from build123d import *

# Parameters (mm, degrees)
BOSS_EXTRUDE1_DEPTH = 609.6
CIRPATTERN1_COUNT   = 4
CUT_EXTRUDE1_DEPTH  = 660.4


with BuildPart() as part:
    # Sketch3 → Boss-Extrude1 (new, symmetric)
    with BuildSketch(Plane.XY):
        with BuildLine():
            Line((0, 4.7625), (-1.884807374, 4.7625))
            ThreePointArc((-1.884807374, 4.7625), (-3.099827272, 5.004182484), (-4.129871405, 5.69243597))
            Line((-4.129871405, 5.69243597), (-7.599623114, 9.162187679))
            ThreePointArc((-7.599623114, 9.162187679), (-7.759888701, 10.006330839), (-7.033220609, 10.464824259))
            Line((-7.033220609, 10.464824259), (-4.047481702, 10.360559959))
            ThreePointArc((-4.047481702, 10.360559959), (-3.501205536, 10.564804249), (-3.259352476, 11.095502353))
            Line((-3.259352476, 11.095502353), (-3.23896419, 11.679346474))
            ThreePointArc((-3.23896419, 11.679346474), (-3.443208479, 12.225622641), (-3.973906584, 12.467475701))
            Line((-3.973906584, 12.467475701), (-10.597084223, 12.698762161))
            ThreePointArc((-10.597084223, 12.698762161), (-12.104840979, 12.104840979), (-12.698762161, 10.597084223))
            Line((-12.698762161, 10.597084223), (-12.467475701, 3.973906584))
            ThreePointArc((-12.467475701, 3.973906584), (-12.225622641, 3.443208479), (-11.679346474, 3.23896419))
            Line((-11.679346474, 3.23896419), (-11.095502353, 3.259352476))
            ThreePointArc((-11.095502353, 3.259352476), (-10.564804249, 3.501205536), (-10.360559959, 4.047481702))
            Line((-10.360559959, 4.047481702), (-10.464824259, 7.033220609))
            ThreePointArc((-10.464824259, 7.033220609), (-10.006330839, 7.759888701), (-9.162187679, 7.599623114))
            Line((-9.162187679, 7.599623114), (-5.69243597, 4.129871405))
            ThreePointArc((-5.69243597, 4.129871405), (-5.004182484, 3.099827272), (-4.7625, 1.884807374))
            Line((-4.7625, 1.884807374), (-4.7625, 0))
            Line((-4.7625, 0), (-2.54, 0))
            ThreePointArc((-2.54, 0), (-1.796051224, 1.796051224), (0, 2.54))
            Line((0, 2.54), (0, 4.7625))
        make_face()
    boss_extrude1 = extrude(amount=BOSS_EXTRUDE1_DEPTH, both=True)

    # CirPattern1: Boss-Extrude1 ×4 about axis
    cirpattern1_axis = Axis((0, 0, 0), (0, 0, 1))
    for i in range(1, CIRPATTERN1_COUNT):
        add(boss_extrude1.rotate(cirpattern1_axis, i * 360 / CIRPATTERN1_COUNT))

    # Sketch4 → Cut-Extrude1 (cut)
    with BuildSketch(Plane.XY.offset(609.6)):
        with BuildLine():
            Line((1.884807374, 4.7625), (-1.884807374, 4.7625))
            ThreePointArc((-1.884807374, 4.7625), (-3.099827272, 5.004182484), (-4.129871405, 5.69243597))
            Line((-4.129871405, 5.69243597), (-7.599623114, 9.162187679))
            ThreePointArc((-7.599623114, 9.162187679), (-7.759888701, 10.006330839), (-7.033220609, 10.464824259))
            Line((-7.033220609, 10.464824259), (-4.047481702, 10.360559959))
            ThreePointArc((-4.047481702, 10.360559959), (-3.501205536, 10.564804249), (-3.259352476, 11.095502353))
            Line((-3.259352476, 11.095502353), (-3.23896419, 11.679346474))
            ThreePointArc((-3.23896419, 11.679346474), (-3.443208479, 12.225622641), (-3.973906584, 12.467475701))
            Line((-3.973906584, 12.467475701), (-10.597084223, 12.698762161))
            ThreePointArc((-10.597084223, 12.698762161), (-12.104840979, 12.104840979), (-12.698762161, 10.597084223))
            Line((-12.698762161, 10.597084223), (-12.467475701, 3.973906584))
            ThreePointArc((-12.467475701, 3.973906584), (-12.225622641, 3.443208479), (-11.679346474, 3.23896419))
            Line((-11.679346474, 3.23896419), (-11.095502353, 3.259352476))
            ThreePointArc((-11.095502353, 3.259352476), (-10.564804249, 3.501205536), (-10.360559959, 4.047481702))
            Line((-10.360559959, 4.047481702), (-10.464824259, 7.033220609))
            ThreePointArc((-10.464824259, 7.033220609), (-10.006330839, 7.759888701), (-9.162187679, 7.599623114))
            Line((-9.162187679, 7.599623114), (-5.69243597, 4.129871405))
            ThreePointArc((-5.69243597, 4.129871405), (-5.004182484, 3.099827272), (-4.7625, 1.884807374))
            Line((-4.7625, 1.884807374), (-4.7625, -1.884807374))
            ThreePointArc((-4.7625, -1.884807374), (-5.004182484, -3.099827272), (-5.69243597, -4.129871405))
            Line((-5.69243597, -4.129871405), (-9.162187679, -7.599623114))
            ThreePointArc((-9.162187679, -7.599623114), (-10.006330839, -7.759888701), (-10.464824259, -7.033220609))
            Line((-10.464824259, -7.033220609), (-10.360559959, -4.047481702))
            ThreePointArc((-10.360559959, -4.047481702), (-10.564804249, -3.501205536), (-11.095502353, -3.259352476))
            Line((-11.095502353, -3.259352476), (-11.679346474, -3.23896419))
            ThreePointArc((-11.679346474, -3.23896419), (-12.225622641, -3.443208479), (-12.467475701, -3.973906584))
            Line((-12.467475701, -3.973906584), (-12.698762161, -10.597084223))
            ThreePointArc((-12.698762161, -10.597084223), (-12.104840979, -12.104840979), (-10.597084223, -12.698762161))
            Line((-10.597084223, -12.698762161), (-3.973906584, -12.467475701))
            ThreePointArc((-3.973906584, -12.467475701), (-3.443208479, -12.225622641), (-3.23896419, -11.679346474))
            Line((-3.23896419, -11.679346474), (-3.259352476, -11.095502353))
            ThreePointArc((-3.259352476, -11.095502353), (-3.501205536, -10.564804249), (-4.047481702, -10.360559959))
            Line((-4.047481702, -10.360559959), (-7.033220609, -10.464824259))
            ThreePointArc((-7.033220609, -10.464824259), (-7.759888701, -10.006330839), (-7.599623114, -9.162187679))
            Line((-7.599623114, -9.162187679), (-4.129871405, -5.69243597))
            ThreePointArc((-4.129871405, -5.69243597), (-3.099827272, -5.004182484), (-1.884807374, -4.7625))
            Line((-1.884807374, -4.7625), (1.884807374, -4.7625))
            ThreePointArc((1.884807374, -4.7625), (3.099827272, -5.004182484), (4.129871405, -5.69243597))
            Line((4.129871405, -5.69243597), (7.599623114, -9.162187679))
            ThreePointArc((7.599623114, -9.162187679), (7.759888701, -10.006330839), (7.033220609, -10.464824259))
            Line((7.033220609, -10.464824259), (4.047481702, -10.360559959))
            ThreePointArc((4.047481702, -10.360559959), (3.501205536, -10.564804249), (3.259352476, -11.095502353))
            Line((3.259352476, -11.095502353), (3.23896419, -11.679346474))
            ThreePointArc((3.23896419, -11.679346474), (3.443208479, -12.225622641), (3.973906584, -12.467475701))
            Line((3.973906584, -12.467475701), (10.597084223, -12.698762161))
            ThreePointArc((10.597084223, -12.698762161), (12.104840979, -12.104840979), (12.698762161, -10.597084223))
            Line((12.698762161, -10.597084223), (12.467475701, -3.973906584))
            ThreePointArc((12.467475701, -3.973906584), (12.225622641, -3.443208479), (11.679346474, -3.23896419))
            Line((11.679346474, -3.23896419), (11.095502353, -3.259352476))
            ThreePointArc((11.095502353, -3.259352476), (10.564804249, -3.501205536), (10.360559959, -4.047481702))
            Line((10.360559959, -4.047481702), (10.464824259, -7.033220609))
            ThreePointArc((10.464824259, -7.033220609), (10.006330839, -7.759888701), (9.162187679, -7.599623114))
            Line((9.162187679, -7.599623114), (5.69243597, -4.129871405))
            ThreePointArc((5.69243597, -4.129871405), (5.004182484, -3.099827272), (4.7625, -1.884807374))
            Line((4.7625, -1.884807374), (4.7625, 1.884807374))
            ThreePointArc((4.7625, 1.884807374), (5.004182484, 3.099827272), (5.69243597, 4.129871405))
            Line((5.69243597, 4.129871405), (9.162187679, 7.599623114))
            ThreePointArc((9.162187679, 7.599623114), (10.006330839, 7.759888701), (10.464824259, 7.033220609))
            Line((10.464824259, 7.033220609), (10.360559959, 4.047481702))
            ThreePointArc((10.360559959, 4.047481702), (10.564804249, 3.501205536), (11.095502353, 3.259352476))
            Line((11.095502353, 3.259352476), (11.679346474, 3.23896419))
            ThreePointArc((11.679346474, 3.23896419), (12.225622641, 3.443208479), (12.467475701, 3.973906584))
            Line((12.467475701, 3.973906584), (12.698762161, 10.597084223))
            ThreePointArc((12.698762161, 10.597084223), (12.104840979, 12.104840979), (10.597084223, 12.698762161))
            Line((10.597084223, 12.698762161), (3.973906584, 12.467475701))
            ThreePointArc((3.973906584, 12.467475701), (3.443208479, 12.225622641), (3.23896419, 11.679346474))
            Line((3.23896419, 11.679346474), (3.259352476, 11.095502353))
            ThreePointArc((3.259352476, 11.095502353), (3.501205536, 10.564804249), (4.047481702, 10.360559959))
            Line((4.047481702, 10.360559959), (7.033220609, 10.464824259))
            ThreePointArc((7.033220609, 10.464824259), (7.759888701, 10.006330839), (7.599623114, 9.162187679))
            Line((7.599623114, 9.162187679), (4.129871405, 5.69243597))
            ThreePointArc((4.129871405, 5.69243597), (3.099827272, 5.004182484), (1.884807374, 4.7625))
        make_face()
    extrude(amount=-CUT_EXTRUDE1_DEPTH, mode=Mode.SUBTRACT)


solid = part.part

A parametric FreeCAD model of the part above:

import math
import FreeCAD as App
import Part
import Sketcher
from FreeCAD import Vector
Q = App.Units.Quantity

doc = App.newDocument("Part")
params = doc.addObject("Spreadsheet::Sheet", "Params")
for row, (alias, value) in enumerate([
    ("sketch1_radius", "0.1 in"),
    ("sketch1_radius2", "0.03 in"),
    ("sketch1_radius3", "0.08 in"),
    ("sketch1_radius4", "0.125 in"),
    ("sketch1_length", "0.023 in"),
    ("pad1_length", "48 in"),
    ("sketch2_radius", "0.03 in"),
    ("sketch2_radius2", "0.08 in"),
    ("sketch2_radius3", "0.125 in"),
    ("sketch2_length", "0.023 in"),
    ("pocket1_length", "26 in"),
], start=1):
    params.set(f"A{row}", alias)
    params.set(f"B{row}", "=" + value)
    params.setAlias(f"B{row}", alias)

body = doc.addObject("PartDesign::Body", "Body")

# Sketch on XY plane
sketch1 = body.newObject("Sketcher::SketchObject", "Sketch")
sketch1.AttachmentSupport = (doc.getObject("XY_Plane"), [""])
sketch1.MapMode = "FlatFace"
sketch1.addGeometry(Part.LineSegment(Vector(0, 4.7625, 0), Vector(-1.884807, 4.7625, 0)), False)
sketch1.addGeometry(Part.ArcOfCircle(Part.Circle(Vector(-1.884807, 7.9375, 0), Vector(0, 0, 1), 3.175), math.radians(-135), math.radians(-90)), False)
sketch1.addGeometry(Part.LineSegment(Vector(-4.129871, 5.692436, 0), Vector(-7.599623, 9.162188, 0)), False)
sketch1.addGeometry(Part.ArcOfCircle(Part.Circle(Vector(-7.059861, 9.70195, 0), Vector(0, 0, 1), 0.763339), math.radians(88), math.radians(225)), False)
sketch1.addGeometry(Part.LineSegment(Vector(-7.033221, 10.464824, 0), Vector(-4.047482, 10.36056, 0)), False)
sketch1.addGeometry(Part.ArcOfCircle(Part.Circle(Vector(-4.020888, 11.122096, 0), Vector(0, 0, 1), 0.762), math.radians(-92), math.radians(-2)), False)
sketch1.addGeometry(Part.LineSegment(Vector(-3.259352, 11.095502, 0), Vector(-3.238964, 11.679346, 0)), False)
sketch1.addGeometry(Part.ArcOfCircle(Part.Circle(Vector(-4.0005, 11.70594, 0), Vector(0, 0, 1), 0.762), math.radians(-2), math.radians(88)), False)
sketch1.addGeometry(Part.LineSegment(Vector(-3.973907, 12.467476, 0), Vector(-10.597084, 12.698762, 0)), False)
sketch1.addGeometry(Part.ArcOfCircle(Part.Circle(Vector(-10.668, 10.668, 0), Vector(0, 0, 1), 2.032), math.radians(88), math.radians(182)), False)
sketch1.addGeometry(Part.LineSegment(Vector(-12.698762, 10.597084, 0), Vector(-12.467476, 3.973907, 0)), False)
sketch1.addGeometry(Part.ArcOfCircle(Part.Circle(Vector(-11.70594, 4.0005, 0), Vector(0, 0, 1), 0.762), math.radians(-178), math.radians(-88)), False)
sketch1.addGeometry(Part.LineSegment(Vector(-11.679346, 3.238964, 0), Vector(-11.095502, 3.259352, 0)), False)
sketch1.addGeometry(Part.ArcOfCircle(Part.Circle(Vector(-11.122096, 4.020888, 0), Vector(0, 0, 1), 0.762), math.radians(-88), math.radians(2)), False)
sketch1.addGeometry(Part.LineSegment(Vector(-10.36056, 4.047482, 0), Vector(-10.464824, 7.033221, 0)), False)
sketch1.addGeometry(Part.ArcOfCircle(Part.Circle(Vector(-9.70195, 7.059861, 0), Vector(0, 0, 1), 0.763339), math.radians(45), math.radians(182)), False)
sketch1.addGeometry(Part.LineSegment(Vector(-9.162188, 7.599623, 0), Vector(-5.692436, 4.129871, 0)), False)
sketch1.addGeometry(Part.ArcOfCircle(Part.Circle(Vector(-7.9375, 1.884807, 0), Vector(0, 0, 1), 3.175), math.radians(0), math.radians(45)), False)
sketch1.addGeometry(Part.LineSegment(Vector(-4.7625, 1.884807, 0), Vector(-4.7625, 0, 0)), False)
sketch1.addGeometry(Part.LineSegment(Vector(-4.7625, 0, 0), Vector(-2.54, 0, 0)), False)
sketch1.addGeometry(Part.ArcOfCircle(Part.Circle(Vector(0, 0, 0), Vector(0, 0, 1), 2.54), math.radians(90), math.radians(180)), False)
sketch1.addGeometry(Part.LineSegment(Vector(0, 2.54, 0), Vector(0, 4.7625, 0)), False)
sketch1.addConstraint(Sketcher.Constraint("Tangent", 0, 2, 1, 2))
sketch1.addConstraint(Sketcher.Constraint("Tangent", 1, 1, 2, 1))
sketch1.addConstraint(Sketcher.Constraint("Tangent", 2, 2, 3, 2))
sketch1.addConstraint(Sketcher.Constraint("Tangent", 3, 1, 4, 1))
sketch1.addConstraint(Sketcher.Constraint("Tangent", 4, 2, 5, 1))
sketch1.addConstraint(Sketcher.Constraint("Tangent", 5, 2, 6, 1))
sketch1.addConstraint(Sketcher.Constraint("Tangent", 6, 2, 7, 1))
sketch1.addConstraint(Sketcher.Constraint("Tangent", 7, 2, 8, 1))
sketch1.addConstraint(Sketcher.Constraint("Tangent", 8, 2, 9, 1))
sketch1.addConstraint(Sketcher.Constraint("Tangent", 9, 2, 10, 1))
sketch1.addConstraint(Sketcher.Constraint("Tangent", 10, 2, 11, 1))
sketch1.addConstraint(Sketcher.Constraint("Tangent", 11, 2, 12, 1))
sketch1.addConstraint(Sketcher.Constraint("Tangent", 12, 2, 13, 1))
sketch1.addConstraint(Sketcher.Constraint("Tangent", 13, 2, 14, 1))
sketch1.addConstraint(Sketcher.Constraint("Tangent", 14, 2, 15, 2))
sketch1.addConstraint(Sketcher.Constraint("Tangent", 15, 1, 16, 1))
sketch1.addConstraint(Sketcher.Constraint("Tangent", 16, 2, 17, 2))
sketch1.addConstraint(Sketcher.Constraint("Tangent", 17, 1, 18, 1))
sketch1.addConstraint(Sketcher.Constraint("Coincident", 18, 2, 19, 1))
sketch1.addConstraint(Sketcher.Constraint("Coincident", 19, 2, 20, 2))
sketch1.addConstraint(Sketcher.Constraint("Coincident", 20, 1, 21, 1))
sketch1.addConstraint(Sketcher.Constraint("Coincident", 21, 2, 0, 1))
sketch1.addConstraint(Sketcher.Constraint("Horizontal", 0))
sketch1.addConstraint(Sketcher.Constraint("Vertical", 18))
sketch1.addConstraint(Sketcher.Constraint("Horizontal", 19))
sketch1.addConstraint(Sketcher.Constraint("Vertical", 21))
sketch1.addConstraint(Sketcher.Constraint("Coincident", 20, 3, -1, 1))
sketch1.addConstraint(Sketcher.Constraint("Equal", 5, 7))
sketch1.addConstraint(Sketcher.Constraint("Equal", 7, 11))
sketch1.addConstraint(Sketcher.Constraint("Equal", 11, 13))
sketch1.addConstraint(Sketcher.Constraint("Equal", 3, 15))
sketch1.addConstraint(Sketcher.Constraint("Equal", 1, 17))
sketch1.addConstraint(Sketcher.Constraint("PointOnObject", 18, 2, -1))
sketch1.addConstraint(Sketcher.Constraint("PointOnObject", 20, 1, -2))
sketch1.addConstraint(Sketcher.Constraint("Perpendicular", 4, 6))
sketch1.addConstraint(Sketcher.Constraint("Perpendicular", 6, 8))
sketch1.addConstraint(Sketcher.Constraint("Perpendicular", 10, 12))
sketch1.addConstraint(Sketcher.Constraint("Perpendicular", 12, 14))
sketch1.addConstraint(Sketcher.Constraint("Parallel", 2, 16))
sketch1.addConstraint(Sketcher.Constraint("Equal", 0, 18))
sketch1.addConstraint(Sketcher.Constraint("Equal", 19, 21))
sketch1.addConstraint(Sketcher.Constraint("Equal", 8, 10))
sketch1.addConstraint(Sketcher.Constraint("Equal", 6, 12))
sketch1.addConstraint(Sketcher.Constraint("Equal", 4, 14))
sketch1.addConstraint(Sketcher.Constraint("Equal", 2, 16))
sketch1.addConstraint(Sketcher.Constraint("Radius", 20, Q("0.1 in")))
sketch1.addConstraint(Sketcher.Constraint("Radius", 5, Q("0.03 in")))
sketch1.addConstraint(Sketcher.Constraint("Radius", 9, Q("0.08 in")))
sketch1.addConstraint(Sketcher.Constraint("Angle", 2, Q("135 deg")))
sketch1.addConstraint(Sketcher.Constraint("Angle", 4, Q("-2 deg")))
sketch1.addConstraint(Sketcher.Constraint("Radius", 1, Q("0.125 in")))
sketch1.addConstraint(Sketcher.Constraint("DistanceX", 9, 3, -1, 1, Q("0.42 in")))
sketch1.addConstraint(Sketcher.Constraint("Distance", 6, Q("0.023 in")))
sketch1.addConstraint(Sketcher.Constraint("DistanceX", 19, 1, 19, 2, Q("0.0875 in")))
sketch1.addConstraint(Sketcher.Constraint("Radius", 3, 0.763339))
sketch1.addConstraint(Sketcher.Constraint("DistanceY", 11, 3, 1, 3, Q("0.155 in")))
sketch1.addConstraint(Sketcher.Constraint("DistanceY", 15, 3, 8, 2, 5.638901))
sketch1.setExpression("Constraints[45]", "Params.sketch1_radius")
sketch1.setExpression("Constraints[46]", "Params.sketch1_radius2")
sketch1.setExpression("Constraints[47]", "Params.sketch1_radius3")
sketch1.setExpression("Constraints[50]", "Params.sketch1_radius4")
sketch1.setExpression("Constraints[52]", "Params.sketch1_length")
pad1 = body.newObject("PartDesign::Pad", "Pad")
pad1.Profile = sketch1
pad1.setExpression("Length", "Params.pad1_length")
pad1.Midplane = True
doc.recompute()

polarpattern = body.newObject("PartDesign::PolarPattern", "PolarPattern")
polarpattern.Originals = [pad1]
polarpattern.Axis = (doc.getObject("Z_Axis"), [""])
polarpattern.Angle = 360
polarpattern.Occurrences = 4
body.Tip = polarpattern

# Sketch on XY plane
sketch2 = body.newObject("Sketcher::SketchObject", "Sketch001")
sketch2.AttachmentSupport = (doc.getObject("XY_Plane"), [""])
sketch2.MapMode = "FlatFace"
sketch2.AttachmentOffset = App.Placement(Vector(0, 0, 24 * 25.4), App.Rotation())
sketch2.addGeometry(Part.LineSegment(Vector(1.884807, 4.7625, 0), Vector(-1.884807, 4.7625, 0)), False)
sketch2.addGeometry(Part.ArcOfCircle(Part.Circle(Vector(-1.884807, 7.9375, 0), Vector(0, 0, 1), 3.175), math.radians(-135), math.radians(-90)), False)
sketch2.addGeometry(Part.LineSegment(Vector(-4.129871, 5.692436, 0), Vector(-7.599623, 9.162188, 0)), False)
sketch2.addGeometry(Part.ArcOfCircle(Part.Circle(Vector(-7.059861, 9.70195, 0), Vector(0, 0, 1), 0.763339), math.radians(88), math.radians(225)), False)
sketch2.addGeometry(Part.LineSegment(Vector(-7.033221, 10.464824, 0), Vector(-4.047482, 10.36056, 0)), False)
sketch2.addGeometry(Part.ArcOfCircle(Part.Circle(Vector(-4.020888, 11.122096, 0), Vector(0, 0, 1), 0.762), math.radians(-92), math.radians(-2)), False)
sketch2.addGeometry(Part.LineSegment(Vector(-3.259352, 11.095502, 0), Vector(-3.238964, 11.679346, 0)), False)
sketch2.addGeometry(Part.ArcOfCircle(Part.Circle(Vector(-4.0005, 11.70594, 0), Vector(0, 0, 1), 0.762), math.radians(-2), math.radians(88)), False)
sketch2.addGeometry(Part.LineSegment(Vector(-3.973907, 12.467476, 0), Vector(-10.597084, 12.698762, 0)), False)
sketch2.addGeometry(Part.ArcOfCircle(Part.Circle(Vector(-10.668, 10.668, 0), Vector(0, 0, 1), 2.032), math.radians(88), math.radians(182)), False)
sketch2.addGeometry(Part.LineSegment(Vector(-12.698762, 10.597084, 0), Vector(-12.467476, 3.973907, 0)), False)
sketch2.addGeometry(Part.ArcOfCircle(Part.Circle(Vector(-11.70594, 4.0005, 0), Vector(0, 0, 1), 0.762), math.radians(-178), math.radians(-88)), False)
sketch2.addGeometry(Part.LineSegment(Vector(-11.679346, 3.238964, 0), Vector(-11.095502, 3.259352, 0)), False)
sketch2.addGeometry(Part.ArcOfCircle(Part.Circle(Vector(-11.122096, 4.020888, 0), Vector(0, 0, 1), 0.762), math.radians(-88), math.radians(2)), False)
sketch2.addGeometry(Part.LineSegment(Vector(-10.36056, 4.047482, 0), Vector(-10.464824, 7.033221, 0)), False)
sketch2.addGeometry(Part.ArcOfCircle(Part.Circle(Vector(-9.70195, 7.059861, 0), Vector(0, 0, 1), 0.763339), math.radians(45), math.radians(182)), False)
sketch2.addGeometry(Part.LineSegment(Vector(-9.162188, 7.599623, 0), Vector(-5.692436, 4.129871, 0)), False)
sketch2.addGeometry(Part.ArcOfCircle(Part.Circle(Vector(-7.9375, 1.884807, 0), Vector(0, 0, 1), 3.175), math.radians(0), math.radians(45)), False)
sketch2.addGeometry(Part.LineSegment(Vector(-4.7625, 1.884807, 0), Vector(-4.7625, -1.884807, 0)), False)
sketch2.addGeometry(Part.ArcOfCircle(Part.Circle(Vector(-7.9375, -1.884807, 0), Vector(0, 0, 1), 3.175), math.radians(-45), math.radians(0)), False)
sketch2.addGeometry(Part.LineSegment(Vector(-5.692436, -4.129871, 0), Vector(-9.162188, -7.599623, 0)), False)
sketch2.addGeometry(Part.ArcOfCircle(Part.Circle(Vector(-9.70195, -7.059861, 0), Vector(0, 0, 1), 0.763339), math.radians(178), math.radians(315)), False)
sketch2.addGeometry(Part.LineSegment(Vector(-10.464824, -7.033221, 0), Vector(-10.36056, -4.047482, 0)), False)
sketch2.addGeometry(Part.ArcOfCircle(Part.Circle(Vector(-11.122096, -4.020888, 0), Vector(0, 0, 1), 0.762), math.radians(-2), math.radians(88)), False)
sketch2.addGeometry(Part.LineSegment(Vector(-11.095502, -3.259352, 0), Vector(-11.679346, -3.238964, 0)), False)
sketch2.addGeometry(Part.ArcOfCircle(Part.Circle(Vector(-11.70594, -4.0005, 0), Vector(0, 0, 1), 0.762), math.radians(88), math.radians(178)), False)
sketch2.addGeometry(Part.LineSegment(Vector(-12.467476, -3.973907, 0), Vector(-12.698762, -10.597084, 0)), False)
sketch2.addGeometry(Part.ArcOfCircle(Part.Circle(Vector(-10.668, -10.668, 0), Vector(0, 0, 1), 2.032), math.radians(178), math.radians(272)), False)
sketch2.addGeometry(Part.LineSegment(Vector(-10.597084, -12.698762, 0), Vector(-3.973907, -12.467476, 0)), False)
sketch2.addGeometry(Part.ArcOfCircle(Part.Circle(Vector(-4.0005, -11.70594, 0), Vector(0, 0, 1), 0.762), math.radians(-88), math.radians(2)), False)
sketch2.addGeometry(Part.LineSegment(Vector(-3.238964, -11.679346, 0), Vector(-3.259352, -11.095502, 0)), False)
sketch2.addGeometry(Part.ArcOfCircle(Part.Circle(Vector(-4.020888, -11.122096, 0), Vector(0, 0, 1), 0.762), math.radians(2), math.radians(92)), False)
sketch2.addGeometry(Part.LineSegment(Vector(-4.047482, -10.36056, 0), Vector(-7.033221, -10.464824, 0)), False)
sketch2.addGeometry(Part.ArcOfCircle(Part.Circle(Vector(-7.059861, -9.70195, 0), Vector(0, 0, 1), 0.763339), math.radians(135), math.radians(272)), False)
sketch2.addGeometry(Part.LineSegment(Vector(-7.599623, -9.162188, 0), Vector(-4.129871, -5.692436, 0)), False)
sketch2.addGeometry(Part.ArcOfCircle(Part.Circle(Vector(-1.884807, -7.9375, 0), Vector(0, 0, 1), 3.175), math.radians(90), math.radians(135)), False)
sketch2.addGeometry(Part.LineSegment(Vector(-1.884807, -4.7625, 0), Vector(1.884807, -4.7625, 0)), False)
sketch2.addGeometry(Part.ArcOfCircle(Part.Circle(Vector(1.884807, -7.9375, 0), Vector(0, 0, 1), 3.175), math.radians(45), math.radians(90)), False)
sketch2.addGeometry(Part.LineSegment(Vector(4.129871, -5.692436, 0), Vector(7.599623, -9.162188, 0)), False)
sketch2.addGeometry(Part.ArcOfCircle(Part.Circle(Vector(7.059861, -9.70195, 0), Vector(0, 0, 1), 0.763339), math.radians(-92), math.radians(45)), False)
sketch2.addGeometry(Part.LineSegment(Vector(7.033221, -10.464824, 0), Vector(4.047482, -10.36056, 0)), False)
sketch2.addGeometry(Part.ArcOfCircle(Part.Circle(Vector(4.020888, -11.122096, 0), Vector(0, 0, 1), 0.762), math.radians(88), math.radians(178)), False)
sketch2.addGeometry(Part.LineSegment(Vector(3.259352, -11.095502, 0), Vector(3.238964, -11.679346, 0)), False)
sketch2.addGeometry(Part.ArcOfCircle(Part.Circle(Vector(4.0005, -11.70594, 0), Vector(0, 0, 1), 0.762), math.radians(178), math.radians(268)), False)
sketch2.addGeometry(Part.LineSegment(Vector(3.973907, -12.467476, 0), Vector(10.597084, -12.698762, 0)), False)
sketch2.addGeometry(Part.ArcOfCircle(Part.Circle(Vector(10.668, -10.668, 0), Vector(0, 0, 1), 2.032), math.radians(-92), math.radians(2)), False)
sketch2.addGeometry(Part.LineSegment(Vector(12.698762, -10.597084, 0), Vector(12.467476, -3.973907, 0)), False)
sketch2.addGeometry(Part.ArcOfCircle(Part.Circle(Vector(11.70594, -4.0005, 0), Vector(0, 0, 1), 0.762), math.radians(2), math.radians(92)), False)
sketch2.addGeometry(Part.LineSegment(Vector(11.679346, -3.238964, 0), Vector(11.095502, -3.259352, 0)), False)
sketch2.addGeometry(Part.ArcOfCircle(Part.Circle(Vector(11.122096, -4.020888, 0), Vector(0, 0, 1), 0.762), math.radians(92), math.radians(182)), False)
sketch2.addGeometry(Part.LineSegment(Vector(10.36056, -4.047482, 0), Vector(10.464824, -7.033221, 0)), False)
sketch2.addGeometry(Part.ArcOfCircle(Part.Circle(Vector(9.70195, -7.059861, 0), Vector(0, 0, 1), 0.763339), math.radians(-135), math.radians(2)), False)
sketch2.addGeometry(Part.LineSegment(Vector(9.162188, -7.599623, 0), Vector(5.692436, -4.129871, 0)), False)
sketch2.addGeometry(Part.ArcOfCircle(Part.Circle(Vector(7.9375, -1.884807, 0), Vector(0, 0, 1), 3.175), math.radians(180), math.radians(225)), False)
sketch2.addGeometry(Part.LineSegment(Vector(4.7625, -1.884807, 0), Vector(4.7625, 1.884807, 0)), False)
sketch2.addGeometry(Part.ArcOfCircle(Part.Circle(Vector(7.9375, 1.884807, 0), Vector(0, 0, 1), 3.175), math.radians(135), math.radians(180)), False)
sketch2.addGeometry(Part.LineSegment(Vector(5.692436, 4.129871, 0), Vector(9.162188, 7.599623, 0)), False)
sketch2.addGeometry(Part.ArcOfCircle(Part.Circle(Vector(9.70195, 7.059861, 0), Vector(0, 0, 1), 0.763339), math.radians(-2), math.radians(135)), False)
sketch2.addGeometry(Part.LineSegment(Vector(10.464824, 7.033221, 0), Vector(10.36056, 4.047482, 0)), False)
sketch2.addGeometry(Part.ArcOfCircle(Part.Circle(Vector(11.122096, 4.020888, 0), Vector(0, 0, 1), 0.762), math.radians(178), math.radians(268)), False)
sketch2.addGeometry(Part.LineSegment(Vector(11.095502, 3.259352, 0), Vector(11.679346, 3.238964, 0)), False)
sketch2.addGeometry(Part.ArcOfCircle(Part.Circle(Vector(11.70594, 4.0005, 0), Vector(0, 0, 1), 0.762), math.radians(-92), math.radians(-2)), False)
sketch2.addGeometry(Part.LineSegment(Vector(12.467476, 3.973907, 0), Vector(12.698762, 10.597084, 0)), False)
sketch2.addGeometry(Part.ArcOfCircle(Part.Circle(Vector(10.668, 10.668, 0), Vector(0, 0, 1), 2.032), math.radians(-2), math.radians(92)), False)
sketch2.addGeometry(Part.LineSegment(Vector(10.597084, 12.698762, 0), Vector(3.973907, 12.467476, 0)), False)
sketch2.addGeometry(Part.ArcOfCircle(Part.Circle(Vector(4.0005, 11.70594, 0), Vector(0, 0, 1), 0.762), math.radians(92), math.radians(182)), False)
sketch2.addGeometry(Part.LineSegment(Vector(3.238964, 11.679346, 0), Vector(3.259352, 11.095502, 0)), False)
sketch2.addGeometry(Part.ArcOfCircle(Part.Circle(Vector(4.020888, 11.122096, 0), Vector(0, 0, 1), 0.762), math.radians(-178), math.radians(-88)), False)
sketch2.addGeometry(Part.LineSegment(Vector(4.047482, 10.36056, 0), Vector(7.033221, 10.464824, 0)), False)
sketch2.addGeometry(Part.ArcOfCircle(Part.Circle(Vector(7.059861, 9.70195, 0), Vector(0, 0, 1), 0.763339), math.radians(-45), math.radians(92)), False)
sketch2.addGeometry(Part.LineSegment(Vector(7.599623, 9.162188, 0), Vector(4.129871, 5.692436, 0)), False)
sketch2.addGeometry(Part.ArcOfCircle(Part.Circle(Vector(1.884807, 7.9375, 0), Vector(0, 0, 1), 3.175), math.radians(-90), math.radians(-45)), False)
sketch2.addConstraint(Sketcher.Constraint("Tangent", 0, 2, 1, 2))
sketch2.addConstraint(Sketcher.Constraint("Tangent", 1, 1, 2, 1))
sketch2.addConstraint(Sketcher.Constraint("Tangent", 2, 2, 3, 2))
sketch2.addConstraint(Sketcher.Constraint("Tangent", 3, 1, 4, 1))
sketch2.addConstraint(Sketcher.Constraint("Tangent", 4, 2, 5, 1))
sketch2.addConstraint(Sketcher.Constraint("Tangent", 5, 2, 6, 1))
sketch2.addConstraint(Sketcher.Constraint("Tangent", 6, 2, 7, 1))
sketch2.addConstraint(Sketcher.Constraint("Tangent", 7, 2, 8, 1))
sketch2.addConstraint(Sketcher.Constraint("Tangent", 8, 2, 9, 1))
sketch2.addConstraint(Sketcher.Constraint("Tangent", 9, 2, 10, 1))
sketch2.addConstraint(Sketcher.Constraint("Tangent", 10, 2, 11, 1))
sketch2.addConstraint(Sketcher.Constraint("Tangent", 11, 2, 12, 1))
sketch2.addConstraint(Sketcher.Constraint("Tangent", 12, 2, 13, 1))
sketch2.addConstraint(Sketcher.Constraint("Tangent", 13, 2, 14, 1))
sketch2.addConstraint(Sketcher.Constraint("Tangent", 14, 2, 15, 2))
sketch2.addConstraint(Sketcher.Constraint("Tangent", 15, 1, 16, 1))
sketch2.addConstraint(Sketcher.Constraint("Tangent", 16, 2, 17, 2))
sketch2.addConstraint(Sketcher.Constraint("Tangent", 17, 1, 18, 1))
sketch2.addConstraint(Sketcher.Constraint("Tangent", 18, 2, 19, 2))
sketch2.addConstraint(Sketcher.Constraint("Tangent", 19, 1, 20, 1))
sketch2.addConstraint(Sketcher.Constraint("Tangent", 20, 2, 21, 2))
sketch2.addConstraint(Sketcher.Constraint("Tangent", 21, 1, 22, 1))
sketch2.addConstraint(Sketcher.Constraint("Tangent", 22, 2, 23, 1))
sketch2.addConstraint(Sketcher.Constraint("Tangent", 23, 2, 24, 1))
sketch2.addConstraint(Sketcher.Constraint("Tangent", 24, 2, 25, 1))
sketch2.addConstraint(Sketcher.Constraint("Tangent", 25, 2, 26, 1))
sketch2.addConstraint(Sketcher.Constraint("Tangent", 26, 2, 27, 1))
sketch2.addConstraint(Sketcher.Constraint("Tangent", 27, 2, 28, 1))
sketch2.addConstraint(Sketcher.Constraint("Tangent", 28, 2, 29, 1))
sketch2.addConstraint(Sketcher.Constraint("Tangent", 29, 2, 30, 1))
sketch2.addConstraint(Sketcher.Constraint("Tangent", 30, 2, 31, 1))
sketch2.addConstraint(Sketcher.Constraint("Tangent", 31, 2, 32, 1))
sketch2.addConstraint(Sketcher.Constraint("Tangent", 32, 2, 33, 2))
sketch2.addConstraint(Sketcher.Constraint("Tangent", 33, 1, 34, 1))
sketch2.addConstraint(Sketcher.Constraint("Tangent", 34, 2, 35, 2))
sketch2.addConstraint(Sketcher.Constraint("Tangent", 35, 1, 36, 1))
sketch2.addConstraint(Sketcher.Constraint("Tangent", 36, 2, 37, 2))
sketch2.addConstraint(Sketcher.Constraint("Tangent", 37, 1, 38, 1))
sketch2.addConstraint(Sketcher.Constraint("Tangent", 38, 2, 39, 2))
sketch2.addConstraint(Sketcher.Constraint("Tangent", 39, 1, 40, 1))
sketch2.addConstraint(Sketcher.Constraint("Tangent", 40, 2, 41, 1))
sketch2.addConstraint(Sketcher.Constraint("Tangent", 41, 2, 42, 1))
sketch2.addConstraint(Sketcher.Constraint("Tangent", 42, 2, 43, 1))
sketch2.addConstraint(Sketcher.Constraint("Tangent", 43, 2, 44, 1))
sketch2.addConstraint(Sketcher.Constraint("Tangent", 44, 2, 45, 1))
sketch2.addConstraint(Sketcher.Constraint("Tangent", 45, 2, 46, 1))
sketch2.addConstraint(Sketcher.Constraint("Tangent", 46, 2, 47, 1))
sketch2.addConstraint(Sketcher.Constraint("Tangent", 47, 2, 48, 1))
sketch2.addConstraint(Sketcher.Constraint("Tangent", 48, 2, 49, 1))
sketch2.addConstraint(Sketcher.Constraint("Tangent", 49, 2, 50, 1))
sketch2.addConstraint(Sketcher.Constraint("Tangent", 50, 2, 51, 2))
sketch2.addConstraint(Sketcher.Constraint("Tangent", 51, 1, 52, 1))
sketch2.addConstraint(Sketcher.Constraint("Tangent", 52, 2, 53, 2))
sketch2.addConstraint(Sketcher.Constraint("Tangent", 53, 1, 54, 1))
sketch2.addConstraint(Sketcher.Constraint("Tangent", 54, 2, 55, 2))
sketch2.addConstraint(Sketcher.Constraint("Tangent", 55, 1, 56, 1))
sketch2.addConstraint(Sketcher.Constraint("Tangent", 56, 2, 57, 2))
sketch2.addConstraint(Sketcher.Constraint("Tangent", 57, 1, 58, 1))
sketch2.addConstraint(Sketcher.Constraint("Tangent", 58, 2, 59, 1))
sketch2.addConstraint(Sketcher.Constraint("Tangent", 59, 2, 60, 1))
sketch2.addConstraint(Sketcher.Constraint("Tangent", 60, 2, 61, 1))
sketch2.addConstraint(Sketcher.Constraint("Tangent", 61, 2, 62, 1))
sketch2.addConstraint(Sketcher.Constraint("Tangent", 62, 2, 63, 1))
sketch2.addConstraint(Sketcher.Constraint("Tangent", 63, 2, 64, 1))
sketch2.addConstraint(Sketcher.Constraint("Tangent", 64, 2, 65, 1))
sketch2.addConstraint(Sketcher.Constraint("Tangent", 65, 2, 66, 1))
sketch2.addConstraint(Sketcher.Constraint("Tangent", 66, 2, 67, 1))
sketch2.addConstraint(Sketcher.Constraint("Tangent", 67, 2, 68, 1))
sketch2.addConstraint(Sketcher.Constraint("Tangent", 68, 2, 69, 2))
sketch2.addConstraint(Sketcher.Constraint("Tangent", 69, 1, 70, 1))
sketch2.addConstraint(Sketcher.Constraint("Tangent", 70, 2, 71, 2))
sketch2.addConstraint(Sketcher.Constraint("Tangent", 71, 1, 0, 1))
sketch2.addConstraint(Sketcher.Constraint("Horizontal", 0))
sketch2.addConstraint(Sketcher.Constraint("Vertical", 18))
sketch2.addConstraint(Sketcher.Constraint("Horizontal", 36))
sketch2.addConstraint(Sketcher.Constraint("Vertical", 54))
sketch2.addConstraint(Sketcher.Constraint("Equal", 5, 7))
sketch2.addConstraint(Sketcher.Constraint("Equal", 7, 11))
sketch2.addConstraint(Sketcher.Constraint("Equal", 11, 13))
sketch2.addConstraint(Sketcher.Constraint("Equal", 3, 15))
sketch2.addConstraint(Sketcher.Constraint("Equal", 1, 17))
sketch2.addConstraint(Sketcher.Constraint("Equal", 17, 19))
sketch2.addConstraint(Sketcher.Constraint("Equal", 15, 21))
sketch2.addConstraint(Sketcher.Constraint("Equal", 13, 23))
sketch2.addConstraint(Sketcher.Constraint("Equal", 23, 25))
sketch2.addConstraint(Sketcher.Constraint("Equal", 9, 27))
sketch2.addConstraint(Sketcher.Constraint("Equal", 25, 29))
sketch2.addConstraint(Sketcher.Constraint("Equal", 29, 31))
sketch2.addConstraint(Sketcher.Constraint("Equal", 21, 33))
sketch2.addConstraint(Sketcher.Constraint("Equal", 19, 35))
sketch2.addConstraint(Sketcher.Constraint("Equal", 35, 37))
sketch2.addConstraint(Sketcher.Constraint("Equal", 33, 39))
sketch2.addConstraint(Sketcher.Constraint("Equal", 31, 41))
sketch2.addConstraint(Sketcher.Constraint("Equal", 41, 43))
sketch2.addConstraint(Sketcher.Constraint("Equal", 27, 45))
sketch2.addConstraint(Sketcher.Constraint("Equal", 43, 47))
sketch2.addConstraint(Sketcher.Constraint("Equal", 47, 49))
sketch2.addConstraint(Sketcher.Constraint("Equal", 39, 51))
sketch2.addConstraint(Sketcher.Constraint("Equal", 37, 53))
sketch2.addConstraint(Sketcher.Constraint("Equal", 53, 55))
sketch2.addConstraint(Sketcher.Constraint("Equal", 51, 57))
sketch2.addConstraint(Sketcher.Constraint("Equal", 49, 59))
sketch2.addConstraint(Sketcher.Constraint("Equal", 59, 61))
sketch2.addConstraint(Sketcher.Constraint("Equal", 45, 63))
sketch2.addConstraint(Sketcher.Constraint("Equal", 61, 65))
sketch2.addConstraint(Sketcher.Constraint("Equal", 65, 67))
sketch2.addConstraint(Sketcher.Constraint("Equal", 57, 69))
sketch2.addConstraint(Sketcher.Constraint("Equal", 55, 71))
sketch2.addConstraint(Sketcher.Constraint("Symmetric", 1, 3, 37, 3, -1, 1))
sketch2.addConstraint(Sketcher.Constraint("Symmetric", 3, 3, 39, 3, -1, 1))
sketch2.addConstraint(Sketcher.Constraint("Symmetric", 5, 3, 41, 3, -1, 1))
sketch2.addConstraint(Sketcher.Constraint("Symmetric", 7, 3, 43, 3, -1, 1))
sketch2.addConstraint(Sketcher.Constraint("Symmetric", 9, 3, 45, 3, -1, 1))
sketch2.addConstraint(Sketcher.Constraint("Symmetric", 11, 3, 47, 3, -1, 1))
sketch2.addConstraint(Sketcher.Constraint("Symmetric", 13, 3, 49, 3, -1, 1))
sketch2.addConstraint(Sketcher.Constraint("Symmetric", 15, 3, 51, 3, -1, 1))
sketch2.addConstraint(Sketcher.Constraint("Symmetric", 17, 3, 53, 3, -1, 1))
sketch2.addConstraint(Sketcher.Constraint("Symmetric", 21, 3, 57, 3, -1, 1))
sketch2.addConstraint(Sketcher.Constraint("Symmetric", 23, 3, 59, 3, -1, 1))
sketch2.addConstraint(Sketcher.Constraint("Symmetric", 25, 3, 61, 3, -1, 1))
sketch2.addConstraint(Sketcher.Constraint("Symmetric", 27, 3, 63, 3, -1, 1))
sketch2.addConstraint(Sketcher.Constraint("Symmetric", 29, 3, 65, 3, -1, 1))
sketch2.addConstraint(Sketcher.Constraint("Symmetric", 31, 3, 67, 3, -1, 1))
sketch2.addConstraint(Sketcher.Constraint("Symmetric", 33, 3, 69, 3, -1, 1))
sketch2.addConstraint(Sketcher.Constraint("Symmetric", 33, 3, 39, 3, -2))
sketch2.addConstraint(Sketcher.Constraint("Symmetric", 31, 3, 41, 3, -2))
sketch2.addConstraint(Sketcher.Constraint("Symmetric", 29, 3, 43, 3, -2))
sketch2.addConstraint(Sketcher.Constraint("Symmetric", 27, 3, 45, 3, -2))
sketch2.addConstraint(Sketcher.Constraint("Symmetric", 25, 3, 47, 3, -2))
sketch2.addConstraint(Sketcher.Constraint("Symmetric", 23, 3, 49, 3, -2))
sketch2.addConstraint(Sketcher.Constraint("Symmetric", 21, 3, 51, 3, -2))
sketch2.addConstraint(Sketcher.Constraint("Perpendicular", 4, 6))
sketch2.addConstraint(Sketcher.Constraint("Perpendicular", 6, 8))
sketch2.addConstraint(Sketcher.Constraint("Perpendicular", 10, 12))
sketch2.addConstraint(Sketcher.Constraint("Perpendicular", 12, 14))
sketch2.addConstraint(Sketcher.Constraint("Parallel", 2, 16))
sketch2.addConstraint(Sketcher.Constraint("Perpendicular", 16, 20))
sketch2.addConstraint(Sketcher.Constraint("Perpendicular", 8, 22))
sketch2.addConstraint(Sketcher.Constraint("Parallel", 20, 34))
sketch2.addConstraint(Sketcher.Constraint("Perpendicular", 52, 56))
sketch2.addConstraint(Sketcher.Constraint("Parallel", 56, 70))
sketch2.addConstraint(Sketcher.Constraint("Horizontal", 19, 3, 53, 3))
sketch2.addConstraint(Sketcher.Constraint("Equal", 36, 18))
sketch2.addConstraint(Sketcher.Constraint("Equal", 8, 10))
sketch2.addConstraint(Sketcher.Constraint("Equal", 6, 12))
sketch2.addConstraint(Sketcher.Constraint("Equal", 4, 14))
sketch2.addConstraint(Sketcher.Constraint("Equal", 2, 16))
sketch2.addConstraint(Sketcher.Constraint("Radius", 5, Q("0.03 in")))
sketch2.addConstraint(Sketcher.Constraint("Radius", 9, Q("0.08 in")))
sketch2.addConstraint(Sketcher.Constraint("Angle", 4, Q("-2 deg")))
sketch2.addConstraint(Sketcher.Constraint("Radius", 1, Q("0.125 in")))
sketch2.addConstraint(Sketcher.Constraint("DistanceX", 9, 3, -1, 1, Q("0.42 in")))
sketch2.addConstraint(Sketcher.Constraint("Distance", 6, Q("0.023 in")))
sketch2.addConstraint(Sketcher.Constraint("DistanceY", -1, 1, 1, 3, Q("0.3125 in")))
sketch2.addConstraint(Sketcher.Constraint("Radius", 3, 0.763339))
sketch2.addConstraint(Sketcher.Constraint("DistanceX", 7, 3, -1, 1, Q("0.1575 in")))
sketch2.addConstraint(Sketcher.Constraint("Distance", 2, 4.90697))
sketch2.setExpression("Constraints[147]", "Params.sketch2_radius")
sketch2.setExpression("Constraints[148]", "Params.sketch2_radius2")
sketch2.setExpression("Constraints[150]", "Params.sketch2_radius3")
sketch2.setExpression("Constraints[152]", "Params.sketch2_length")
pocket1 = body.newObject("PartDesign::Pocket", "Pocket")
pocket1.Profile = sketch2
pocket1.setExpression("Length", "Params.pocket1_length")

doc.recompute()
